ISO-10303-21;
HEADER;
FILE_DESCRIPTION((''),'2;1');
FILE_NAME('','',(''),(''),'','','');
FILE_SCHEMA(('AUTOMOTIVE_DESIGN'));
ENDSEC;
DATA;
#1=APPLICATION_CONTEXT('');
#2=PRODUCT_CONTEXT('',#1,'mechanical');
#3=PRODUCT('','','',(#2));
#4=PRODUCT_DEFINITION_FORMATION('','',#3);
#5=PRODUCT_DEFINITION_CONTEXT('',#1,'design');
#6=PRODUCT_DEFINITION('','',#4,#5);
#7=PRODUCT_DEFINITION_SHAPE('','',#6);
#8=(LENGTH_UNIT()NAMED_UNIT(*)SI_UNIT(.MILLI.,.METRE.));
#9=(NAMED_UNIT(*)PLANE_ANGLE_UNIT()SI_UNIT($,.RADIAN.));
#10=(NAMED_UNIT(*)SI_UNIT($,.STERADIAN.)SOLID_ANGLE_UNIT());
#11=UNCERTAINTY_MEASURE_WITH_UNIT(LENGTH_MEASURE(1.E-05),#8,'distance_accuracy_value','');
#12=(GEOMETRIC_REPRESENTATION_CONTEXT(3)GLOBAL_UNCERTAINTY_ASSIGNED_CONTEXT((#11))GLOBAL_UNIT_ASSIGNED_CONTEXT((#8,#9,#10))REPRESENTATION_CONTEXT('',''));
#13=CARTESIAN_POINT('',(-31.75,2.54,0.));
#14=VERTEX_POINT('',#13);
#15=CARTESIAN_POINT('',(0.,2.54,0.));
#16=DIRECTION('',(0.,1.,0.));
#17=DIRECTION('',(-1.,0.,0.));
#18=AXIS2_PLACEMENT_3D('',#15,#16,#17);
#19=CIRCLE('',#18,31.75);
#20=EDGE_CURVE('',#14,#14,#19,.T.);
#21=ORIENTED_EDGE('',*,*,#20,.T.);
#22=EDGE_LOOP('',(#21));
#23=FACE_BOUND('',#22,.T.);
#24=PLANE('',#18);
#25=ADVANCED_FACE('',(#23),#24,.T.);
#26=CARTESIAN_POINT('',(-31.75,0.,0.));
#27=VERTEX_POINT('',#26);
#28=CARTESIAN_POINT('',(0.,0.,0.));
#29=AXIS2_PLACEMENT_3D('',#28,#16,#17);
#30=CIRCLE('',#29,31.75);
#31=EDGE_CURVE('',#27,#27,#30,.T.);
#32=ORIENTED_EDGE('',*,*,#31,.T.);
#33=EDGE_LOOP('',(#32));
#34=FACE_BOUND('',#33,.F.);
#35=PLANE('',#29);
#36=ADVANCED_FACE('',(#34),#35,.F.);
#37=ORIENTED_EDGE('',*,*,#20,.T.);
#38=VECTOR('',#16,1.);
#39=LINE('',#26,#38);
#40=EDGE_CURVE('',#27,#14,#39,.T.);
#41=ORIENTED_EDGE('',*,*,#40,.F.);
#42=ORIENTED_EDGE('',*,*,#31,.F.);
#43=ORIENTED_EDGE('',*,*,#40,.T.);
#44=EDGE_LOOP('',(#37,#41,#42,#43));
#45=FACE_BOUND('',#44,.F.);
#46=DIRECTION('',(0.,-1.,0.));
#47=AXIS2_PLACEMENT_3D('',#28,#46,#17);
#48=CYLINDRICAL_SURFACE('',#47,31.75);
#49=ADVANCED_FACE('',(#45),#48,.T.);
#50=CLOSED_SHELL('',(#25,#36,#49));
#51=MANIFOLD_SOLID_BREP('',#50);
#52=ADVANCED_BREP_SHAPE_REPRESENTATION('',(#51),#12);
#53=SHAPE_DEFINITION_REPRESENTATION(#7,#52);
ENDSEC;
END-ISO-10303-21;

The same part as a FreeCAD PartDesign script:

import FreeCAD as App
import Part
import Sketcher
Q = App.Units.Quantity

doc = App.newDocument("Part")
body = doc.addObject("PartDesign::Body", "Body")

# Sketch on XZ plane
sketch1 = body.newObject("Sketcher::SketchObject", "Sketch")
sketch1.AttachmentSupport = (doc.getObject("XZ_Plane"), [""])
sketch1.MapMode = "FlatFace"
sketch1.addGeometry(Part.Circle(App.Vector(0, 0, 0), App.Vector(0, 0, 1), 32), False)
sketch1.addConstraint(Sketcher.Constraint("Coincident", 0, 3, -1, 1))
sketch1.addConstraint(Sketcher.Constraint("Diameter", 0, Q("2.5 in")))
pad1 = body.newObject("PartDesign::Pad", "Pad")
pad1.Profile = sketch1
pad1.Length = Q("0.1 in")
pad1.Reversed = True

doc.recompute()
